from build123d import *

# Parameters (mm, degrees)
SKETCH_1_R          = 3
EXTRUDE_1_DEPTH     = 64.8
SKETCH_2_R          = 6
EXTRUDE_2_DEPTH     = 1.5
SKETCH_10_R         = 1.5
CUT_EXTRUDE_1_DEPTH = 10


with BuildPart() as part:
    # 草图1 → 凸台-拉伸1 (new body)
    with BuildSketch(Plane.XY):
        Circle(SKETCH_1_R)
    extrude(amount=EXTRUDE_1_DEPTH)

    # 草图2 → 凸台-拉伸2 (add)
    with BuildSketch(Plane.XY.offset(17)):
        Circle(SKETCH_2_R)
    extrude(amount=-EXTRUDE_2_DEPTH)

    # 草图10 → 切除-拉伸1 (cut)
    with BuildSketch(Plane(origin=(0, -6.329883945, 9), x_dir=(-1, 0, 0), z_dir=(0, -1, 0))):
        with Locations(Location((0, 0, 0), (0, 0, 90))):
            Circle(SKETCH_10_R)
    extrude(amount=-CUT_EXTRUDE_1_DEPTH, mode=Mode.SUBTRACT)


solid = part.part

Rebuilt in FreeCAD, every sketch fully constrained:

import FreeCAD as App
import Part
import Sketcher

V = App.Vector

doc = App.newDocument("Part")
params = doc.addObject("Spreadsheet::Sheet", "Params")
for row, (alias, value) in enumerate([
    ("sketch1_diameter", "6 mm"),
    ("pad1_length", "64.8 mm"),
    ("sketch2_diameter", "12 mm"),
    ("pad2_length", "1.5 mm"),
    ("sketch3_diameter", "3 mm"),
    ("pocket1_length", "10 mm"),
], start=1):
    params.set(f"A{row}", alias)
    params.set(f"B{row}", "=" + value)
    params.setAlias(f"B{row}", alias)

body = doc.addObject("PartDesign::Body", "Body")

# Sketch on XY plane
sketch1 = body.newObject("Sketcher::SketchObject", "Sketch")
sketch1.AttachmentSupport = (doc.getObject("XY_Plane"), [""])
sketch1.MapMode = "FlatFace"
sketch1.addGeometry(Part.Circle(V(0, 0, 0), V(0, 0, 1), 3), False)
sketch1.addConstraint(Sketcher.Constraint("Coincident", 0, 3, -1, 1))
sketch1.addConstraint(Sketcher.Constraint("Diameter", 0, 6.0))
sketch1.setExpression("Constraints[1]", "Params.sketch1_diameter")
pad1 = body.newObject("PartDesign::Pad", "Pad")
pad1.Profile = sketch1
pad1.setExpression("Length", "Params.pad1_length")

# Sketch on XY plane
sketch2 = body.newObject("Sketcher::SketchObject", "Sketch001")
sketch2.AttachmentSupport = (doc.getObject("XY_Plane"), [""])
sketch2.MapMode = "FlatFace"
sketch2.AttachmentOffset = App.Placement(V(0, 0, 17), App.Rotation())
sketch2.addGeometry(Part.Circle(V(0, 0, 0), V(0, 0, 1), 6), False)
sketch2.addConstraint(Sketcher.Constraint("Coincident", 0, 3, -1, 1))
sketch2.addConstraint(Sketcher.Constraint("Diameter", 0, 12.0))
sketch2.setExpression("Constraints[1]", "Params.sketch2_diameter")
pad2 = body.newObject("PartDesign::Pad", "Pad001")
pad2.Profile = sketch2
pad2.setExpression("Length", "Params.pad2_length")
pad2.Reversed = True

# Sketch on XZ plane
sketch3 = body.newObject("Sketcher::SketchObject", "Sketch002")
sketch3.AttachmentSupport = (doc.getObject("XZ_Plane"), [""])
sketch3.MapMode = "FlatFace"
sketch3.AttachmentOffset = App.Placement(V(0, 0, 6.329884), App.Rotation())
sketch3.addGeometry(Part.Circle(V(0, 9, 0), V(0, 0, 1), 1.5), False)
sketch3.addConstraint(Sketcher.Constraint("PointOnObject", 0, 3, -2))
sketch3.addConstraint(Sketcher.Constraint("Diameter", 0, 3.0))
sketch3.addConstraint(Sketcher.Constraint("DistanceY", -1, 1, 0, 3, 9.0))
sketch3.setExpression("Constraints[1]", "Params.sketch3_diameter")
pocket1 = body.newObject("PartDesign::Pocket", "Pocket")
pocket1.Profile = sketch3
pocket1.setExpression("Length", "Params.pocket1_length")

doc.recompute()
